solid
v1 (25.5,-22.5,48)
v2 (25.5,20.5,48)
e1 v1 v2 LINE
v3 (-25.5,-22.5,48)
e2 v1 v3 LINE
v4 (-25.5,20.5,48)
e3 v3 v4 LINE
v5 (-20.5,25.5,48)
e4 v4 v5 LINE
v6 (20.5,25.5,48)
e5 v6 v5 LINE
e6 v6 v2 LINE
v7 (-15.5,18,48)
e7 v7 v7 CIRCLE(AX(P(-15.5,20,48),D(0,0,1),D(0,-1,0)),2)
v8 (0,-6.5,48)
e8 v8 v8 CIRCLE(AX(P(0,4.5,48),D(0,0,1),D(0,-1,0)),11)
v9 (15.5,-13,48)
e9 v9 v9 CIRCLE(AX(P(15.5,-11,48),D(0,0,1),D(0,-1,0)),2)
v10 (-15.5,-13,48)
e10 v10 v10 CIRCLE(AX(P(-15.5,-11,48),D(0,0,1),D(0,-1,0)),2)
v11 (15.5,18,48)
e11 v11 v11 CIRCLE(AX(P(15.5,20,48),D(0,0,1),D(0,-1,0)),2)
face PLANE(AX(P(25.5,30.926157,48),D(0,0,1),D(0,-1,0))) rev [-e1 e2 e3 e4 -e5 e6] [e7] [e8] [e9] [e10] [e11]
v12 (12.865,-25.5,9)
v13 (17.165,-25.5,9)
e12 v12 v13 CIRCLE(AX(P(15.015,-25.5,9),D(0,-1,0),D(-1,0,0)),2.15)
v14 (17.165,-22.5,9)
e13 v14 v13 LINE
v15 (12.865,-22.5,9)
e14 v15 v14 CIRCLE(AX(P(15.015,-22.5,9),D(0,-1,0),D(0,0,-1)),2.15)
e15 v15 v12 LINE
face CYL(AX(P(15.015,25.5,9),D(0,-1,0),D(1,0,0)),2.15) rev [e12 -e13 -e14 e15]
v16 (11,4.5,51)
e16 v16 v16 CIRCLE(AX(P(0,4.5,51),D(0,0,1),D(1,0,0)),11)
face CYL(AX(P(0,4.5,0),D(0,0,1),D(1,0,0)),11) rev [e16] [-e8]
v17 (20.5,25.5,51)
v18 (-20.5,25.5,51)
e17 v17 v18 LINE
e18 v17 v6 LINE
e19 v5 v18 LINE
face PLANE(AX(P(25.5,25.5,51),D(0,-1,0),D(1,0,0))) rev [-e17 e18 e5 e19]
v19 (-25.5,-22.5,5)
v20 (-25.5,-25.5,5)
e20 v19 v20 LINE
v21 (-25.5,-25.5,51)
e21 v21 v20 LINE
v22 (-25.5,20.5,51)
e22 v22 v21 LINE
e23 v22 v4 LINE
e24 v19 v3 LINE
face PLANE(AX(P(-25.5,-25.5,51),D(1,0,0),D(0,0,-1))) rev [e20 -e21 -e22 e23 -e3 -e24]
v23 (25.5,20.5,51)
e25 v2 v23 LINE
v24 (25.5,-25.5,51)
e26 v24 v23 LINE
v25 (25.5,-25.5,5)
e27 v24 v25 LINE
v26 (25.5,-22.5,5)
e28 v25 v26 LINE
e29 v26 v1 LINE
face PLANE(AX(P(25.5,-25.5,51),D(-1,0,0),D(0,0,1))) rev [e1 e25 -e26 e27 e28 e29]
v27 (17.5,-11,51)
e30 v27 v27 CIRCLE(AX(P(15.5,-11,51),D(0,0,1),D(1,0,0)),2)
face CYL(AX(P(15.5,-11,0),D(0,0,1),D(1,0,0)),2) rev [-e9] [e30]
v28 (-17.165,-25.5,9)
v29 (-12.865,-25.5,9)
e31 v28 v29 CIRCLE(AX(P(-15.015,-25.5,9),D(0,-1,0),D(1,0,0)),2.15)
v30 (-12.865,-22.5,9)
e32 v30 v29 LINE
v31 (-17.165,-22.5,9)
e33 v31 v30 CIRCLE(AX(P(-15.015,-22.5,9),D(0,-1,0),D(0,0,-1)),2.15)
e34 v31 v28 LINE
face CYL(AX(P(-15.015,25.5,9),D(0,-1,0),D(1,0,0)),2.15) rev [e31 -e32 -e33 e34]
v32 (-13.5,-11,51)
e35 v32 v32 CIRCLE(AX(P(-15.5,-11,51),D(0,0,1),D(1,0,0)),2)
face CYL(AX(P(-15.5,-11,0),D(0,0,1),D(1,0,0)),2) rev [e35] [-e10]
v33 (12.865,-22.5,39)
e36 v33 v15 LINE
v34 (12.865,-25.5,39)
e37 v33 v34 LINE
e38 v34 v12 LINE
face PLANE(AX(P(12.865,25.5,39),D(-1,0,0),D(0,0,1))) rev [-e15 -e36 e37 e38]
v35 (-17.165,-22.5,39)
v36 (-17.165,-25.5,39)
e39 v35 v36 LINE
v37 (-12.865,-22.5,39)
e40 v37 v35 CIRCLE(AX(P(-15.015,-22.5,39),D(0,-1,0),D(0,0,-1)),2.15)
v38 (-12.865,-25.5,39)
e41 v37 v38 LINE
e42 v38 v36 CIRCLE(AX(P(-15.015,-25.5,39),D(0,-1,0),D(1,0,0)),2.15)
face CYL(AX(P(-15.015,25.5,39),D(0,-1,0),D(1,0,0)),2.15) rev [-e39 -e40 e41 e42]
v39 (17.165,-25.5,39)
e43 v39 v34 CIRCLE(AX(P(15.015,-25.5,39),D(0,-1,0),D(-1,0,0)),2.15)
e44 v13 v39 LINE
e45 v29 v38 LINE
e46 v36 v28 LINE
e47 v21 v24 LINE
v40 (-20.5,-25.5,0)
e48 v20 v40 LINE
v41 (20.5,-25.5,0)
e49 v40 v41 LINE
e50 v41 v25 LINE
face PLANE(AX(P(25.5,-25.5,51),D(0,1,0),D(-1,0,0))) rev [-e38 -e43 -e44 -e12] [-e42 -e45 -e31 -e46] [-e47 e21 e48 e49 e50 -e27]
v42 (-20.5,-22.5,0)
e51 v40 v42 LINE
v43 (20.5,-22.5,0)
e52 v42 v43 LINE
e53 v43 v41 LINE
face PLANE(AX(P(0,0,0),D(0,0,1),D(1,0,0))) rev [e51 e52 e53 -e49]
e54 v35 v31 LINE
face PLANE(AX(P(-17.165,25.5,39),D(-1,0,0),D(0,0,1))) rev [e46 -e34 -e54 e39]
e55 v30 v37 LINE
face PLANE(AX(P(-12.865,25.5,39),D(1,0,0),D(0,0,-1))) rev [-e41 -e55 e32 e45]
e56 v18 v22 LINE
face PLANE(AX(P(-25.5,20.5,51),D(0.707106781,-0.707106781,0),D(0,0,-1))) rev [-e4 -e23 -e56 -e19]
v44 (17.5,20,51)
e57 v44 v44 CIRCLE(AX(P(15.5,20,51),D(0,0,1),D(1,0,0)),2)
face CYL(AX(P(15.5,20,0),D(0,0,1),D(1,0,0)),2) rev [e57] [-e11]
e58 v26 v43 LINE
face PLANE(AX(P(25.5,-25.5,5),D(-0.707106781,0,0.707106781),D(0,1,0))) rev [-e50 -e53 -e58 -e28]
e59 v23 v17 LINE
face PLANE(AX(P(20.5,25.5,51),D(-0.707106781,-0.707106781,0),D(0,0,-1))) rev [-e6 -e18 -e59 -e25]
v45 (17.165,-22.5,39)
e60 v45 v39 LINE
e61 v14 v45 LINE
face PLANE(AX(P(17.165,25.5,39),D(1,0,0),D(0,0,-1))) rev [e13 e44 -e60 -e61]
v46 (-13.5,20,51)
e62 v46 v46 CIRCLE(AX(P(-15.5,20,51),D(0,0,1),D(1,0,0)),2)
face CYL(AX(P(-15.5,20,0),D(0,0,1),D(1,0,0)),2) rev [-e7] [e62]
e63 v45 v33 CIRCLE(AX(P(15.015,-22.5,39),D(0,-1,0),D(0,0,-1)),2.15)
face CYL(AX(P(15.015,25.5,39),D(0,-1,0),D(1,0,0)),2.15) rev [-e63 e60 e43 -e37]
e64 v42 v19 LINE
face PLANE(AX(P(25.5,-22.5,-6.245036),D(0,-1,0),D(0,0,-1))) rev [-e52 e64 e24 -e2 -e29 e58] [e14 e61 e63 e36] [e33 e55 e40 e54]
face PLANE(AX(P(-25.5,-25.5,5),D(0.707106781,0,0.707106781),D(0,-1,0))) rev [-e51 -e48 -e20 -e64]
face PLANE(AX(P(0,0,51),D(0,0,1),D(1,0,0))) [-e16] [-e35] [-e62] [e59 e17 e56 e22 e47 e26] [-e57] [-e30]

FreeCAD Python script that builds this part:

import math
import FreeCAD as App
import Part
import Sketcher


def edges_at(feature, points):
    """Names of the edges that pass closest to the given points."""
    edges = feature.Shape.Edges
    near = lambda p: min(range(len(edges)), key=lambda i: edges[i].distToShape(Part.Vertex(*p))[0])
    return sorted({f"Edge{near(p) + 1}" for p in points})


def add_polygon(sketch, points):
    """Adds a closed chain of lines whose ends are joined by coincident constraints."""
    first, n = sketch.GeometryCount, len(points)
    for a, b in zip(points, points[1:] + points[:1]):
        sketch.addGeometry(Part.LineSegment(App.Vector(*a, 0), App.Vector(*b, 0)), False)
    for i in range(n):
        sketch.addConstraint(Sketcher.Constraint("Coincident", first + i, 2, first + (i + 1) % n, 1))

doc = App.newDocument("Part")
body = doc.addObject("PartDesign::Body", "Body")

# Sketch on XY plane
sketch1 = body.newObject("Sketcher::SketchObject", "Sketch")
sketch1.AttachmentSupport = (doc.getObject("XY_Plane"), [""])
sketch1.MapMode = "FlatFace"
add_polygon(sketch1, [(-26, 26), (-26, -26), (26, -26), (26, 26)])  # lines 0-3
sketch1.addConstraint(Sketcher.Constraint("Vertical", 0))
sketch1.addConstraint(Sketcher.Constraint("Horizontal", 1))
sketch1.addConstraint(Sketcher.Constraint("Vertical", 2))
sketch1.addConstraint(Sketcher.Constraint("Horizontal", 3))
sketch1.addConstraint(Sketcher.Constraint("Symmetric", 0, 2, 2, 2, -1, 1))
sketch1.addConstraint(Sketcher.Constraint("Equal", 3, 0))
sketch1.addConstraint(Sketcher.Constraint("DistanceX", 1, 1, 1, 2, 51.0))
pad1 = body.newObject("PartDesign::Pad", "Pad")
pad1.Profile = sketch1
pad1.Length = 51

# Sketch on YZ plane
sketch2 = body.newObject("Sketcher::SketchObject", "Sketch001")
sketch2.AttachmentSupport = (doc.getObject("YZ_Plane"), [""])
sketch2.MapMode = "FlatFace"
sketch2.AttachmentOffset = App.Placement(App.Vector(0, 0, -25.5), App.Rotation())
add_polygon(sketch2, [(31, -6), (-22, -6), (-22, 48), (31, 48)])  # lines 0-3
sketch2.addConstraint(Sketcher.Constraint("Horizontal", 0))
sketch2.addConstraint(Sketcher.Constraint("Vertical", 1))
sketch2.addConstraint(Sketcher.Constraint("Horizontal", 2))
sketch2.addConstraint(Sketcher.Constraint("Vertical", 3))
sketch2.addConstraint(Sketcher.Constraint("DistanceY", -1, 1, 1, 2, 48.0))
sketch2.addConstraint(Sketcher.Constraint("DistanceX", 0, 2, -1, 1, 22.5))
sketch2.addConstraint(Sketcher.Constraint("DistanceX", 0, 2, 0, 1, 53.426157))
sketch2.addConstraint(Sketcher.Constraint("DistanceY", 1, 1, 1, 2, 54.245036))
pocket1 = body.newObject("PartDesign::Pocket", "Pocket")
pocket1.Profile = sketch2
pocket1.Length = 51
pocket1.Reversed = True

# Sketch on XY plane
sketch3 = body.newObject("Sketcher::SketchObject", "Sketch002")
sketch3.AttachmentSupport = (doc.getObject("XY_Plane"), [""])
sketch3.MapMode = "FlatFace"
sketch3.AttachmentOffset = App.Placement(App.Vector(0, 0, 51), App.Rotation())
sketch3.addGeometry(Part.Circle(App.Vector(0, 4.5, 0), App.Vector(0, 0, 1), 11), False)
sketch3.addGeometry(Part.Circle(App.Vector(-15.5, 20, 0), App.Vector(0, 0, 1), 2), False)
sketch3.addGeometry(Part.Circle(App.Vector(15.5, 20, 0), App.Vector(0, 0, 1), 2), False)
sketch3.addGeometry(Part.Circle(App.Vector(-15.5, -11, 0), App.Vector(0, 0, 1), 2), False)
sketch3.addGeometry(Part.Circle(App.Vector(15.5, -11, 0), App.Vector(0, 0, 1), 2), False)
sketch3.addConstraint(Sketcher.Constraint("Equal", 1, 2))
sketch3.addConstraint(Sketcher.Constraint("Equal", 2, 3))
sketch3.addConstraint(Sketcher.Constraint("Equal", 3, 4))
sketch3.addConstraint(Sketcher.Constraint("Symmetric", 1, 3, 2, 3, -2))
sketch3.addConstraint(Sketcher.Constraint("Symmetric", 3, 3, 4, 3, -2))
sketch3.addConstraint(Sketcher.Constraint("PointOnObject", 0, 3, -2))
sketch3.addConstraint(Sketcher.Constraint("Vertical", 1, 3, 3, 3))
sketch3.addConstraint(Sketcher.Constraint("Diameter", 0, 22.0))
sketch3.addConstraint(Sketcher.Constraint("Diameter", 1, 4.0))
sketch3.addConstraint(Sketcher.Constraint("DistanceY", -1, 1, 1, 3, 20.0))
sketch3.addConstraint(Sketcher.Constraint("DistanceY", 3, 3, -1, 1, 11.0))
sketch3.addConstraint(Sketcher.Constraint("DistanceX", 1, 3, 2, 3, 31.0))
sketch3.addConstraint(Sketcher.Constraint("DistanceY", -1, 1, 0, 3, 4.5))
pocket2 = body.newObject("PartDesign::Pocket", "Pocket001")
pocket2.Profile = sketch3
pocket2.Length = 51
doc.recompute()

chamfer = body.newObject("PartDesign::Chamfer", "Chamfer")
chamfer.Base = (pocket2, edges_at(pocket2, [(-25.5, 25.5, 49.5)]))
chamfer.Size = 5
doc.recompute()

chamfer2 = body.newObject("PartDesign::Chamfer", "Chamfer001")
chamfer2.Base = (chamfer, edges_at(chamfer, [(-25.5, -24, 0), (25.5, -24, 0), (25.5, 25.5, 49.5)]))
chamfer2.Size = 5

# Sketch on XZ plane
sketch4 = body.newObject("Sketcher::SketchObject", "Sketch003")
sketch4.AttachmentSupport = (doc.getObject("XZ_Plane"), [""])
sketch4.MapMode = "FlatFace"
sketch4.AttachmentOffset = App.Placement(App.Vector(0, 0, 25.5), App.Rotation())
sketch4.addGeometry(Part.LineSegment(App.Vector(-12.9, 9, 0), App.Vector(-12.9, 39, 0)), False)
sketch4.addGeometry(Part.ArcOfCircle(Part.Circle(App.Vector(-15, 39, 0), App.Vector(0, 0, 1), 2.1), math.radians(0), math.radians(180)), False)
sketch4.addGeometry(Part.LineSegment(App.Vector(-17.2, 39, 0), App.Vector(-17.2, 9, 0)), False)
sketch4.addGeometry(Part.ArcOfCircle(Part.Circle(App.Vector(-15, 9, 0), App.Vector(0, 0, 1), 2.1), math.radians(180), math.radians(360)), False)
sketch4.addGeometry(Part.LineSegment(App.Vector(12.9, 39, 0), App.Vector(12.9, 9, 0)), False)
sketch4.addGeometry(Part.ArcOfCircle(Part.Circle(App.Vector(15, 9, 0), App.Vector(0, 0, 1), 2.1), math.radians(180), math.radians(360)), False)
sketch4.addGeometry(Part.LineSegment(App.Vector(17.2, 9, 0), App.Vector(17.2, 39, 0)), False)
sketch4.addGeometry(Part.ArcOfCircle(Part.Circle(App.Vector(15, 39, 0), App.Vector(0, 0, 1), 2.1), math.radians(0), math.radians(180)), False)
sketch4.addConstraint(Sketcher.Constraint("Tangent", 0, 2, 1, 1))
sketch4.addConstraint(Sketcher.Constraint("Tangent", 1, 2, 2, 1))
sketch4.addConstraint(Sketcher.Constraint("Tangent", 2, 2, 3, 1))
sketch4.addConstraint(Sketcher.Constraint("Tangent", 3, 2, 0, 1))
sketch4.addConstraint(Sketcher.Constraint("Tangent", 4, 2, 5, 1))
sketch4.addConstraint(Sketcher.Constraint("Tangent", 5, 2, 6, 1))
sketch4.addConstraint(Sketcher.Constraint("Tangent", 6, 2, 7, 1))
sketch4.addConstraint(Sketcher.Constraint("Tangent", 7, 2, 4, 1))
sketch4.addConstraint(Sketcher.Constraint("Vertical", 0))
sketch4.addConstraint(Sketcher.Constraint("Vertical", 2))
sketch4.addConstraint(Sketcher.Constraint("Vertical", 4))
sketch4.addConstraint(Sketcher.Constraint("Vertical", 6))
sketch4.addConstraint(Sketcher.Constraint("Equal", 3, 5))
sketch4.addConstraint(Sketcher.Constraint("Symmetric", 3, 3, 5, 3, -2))
sketch4.addConstraint(Sketcher.Constraint("Horizontal", 1, 3, 7, 3))
sketch4.addConstraint(Sketcher.Constraint("DistanceY", 0, 1, 0, 2, 30.0))
sketch4.addConstraint(Sketcher.Constraint("Radius", 1, 2.15))
sketch4.addConstraint(Sketcher.Constraint("DistanceY", -1, 1, 1, 3, 39.0))
sketch4.addConstraint(Sketcher.Constraint("DistanceX", 3, 3, 5, 3, 30.03))
pocket3 = body.newObject("PartDesign::Pocket", "Pocket002")
pocket3.Profile = sketch4
pocket3.Length = 51

doc.recompute()
